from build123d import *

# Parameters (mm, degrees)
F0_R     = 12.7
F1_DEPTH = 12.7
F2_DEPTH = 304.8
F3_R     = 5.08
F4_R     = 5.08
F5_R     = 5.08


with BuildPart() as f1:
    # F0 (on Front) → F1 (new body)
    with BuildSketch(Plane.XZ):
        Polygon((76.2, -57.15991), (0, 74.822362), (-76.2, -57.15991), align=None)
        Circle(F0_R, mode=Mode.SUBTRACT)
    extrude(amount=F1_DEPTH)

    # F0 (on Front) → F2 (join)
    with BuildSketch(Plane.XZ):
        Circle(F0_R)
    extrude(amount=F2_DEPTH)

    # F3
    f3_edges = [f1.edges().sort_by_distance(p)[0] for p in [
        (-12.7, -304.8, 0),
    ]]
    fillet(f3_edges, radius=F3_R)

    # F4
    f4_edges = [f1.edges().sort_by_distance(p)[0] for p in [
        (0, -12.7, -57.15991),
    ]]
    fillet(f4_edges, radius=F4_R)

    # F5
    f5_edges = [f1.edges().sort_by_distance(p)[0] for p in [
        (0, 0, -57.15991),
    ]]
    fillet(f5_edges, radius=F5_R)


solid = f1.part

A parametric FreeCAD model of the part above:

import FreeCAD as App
import Part
import Sketcher
Q = App.Units.Quantity


def edges_at(feature, points):
    """Names of the edges that pass closest to the given points."""
    edges = feature.Shape.Edges
    near = lambda p: min(range(len(edges)), key=lambda i: edges[i].distToShape(Part.Vertex(*p))[0])
    return sorted({f"Edge{near(p) + 1}" for p in points})

doc = App.newDocument("Part")
body = doc.addObject("PartDesign::Body", "Body")

# Sketch on XZ plane
sketch1 = body.newObject("Sketcher::SketchObject", "Sketch")
sketch1.AttachmentSupport = (doc.getObject("XZ_Plane"), [""])
sketch1.MapMode = "FlatFace"
sketch1.addGeometry(Part.LineSegment(App.Vector(76.2, -57.15991, 0), App.Vector(0, 74.822362, 0)), False)
sketch1.addGeometry(Part.LineSegment(App.Vector(0, 74.822362, 0), App.Vector(-76.2, -57.15991, 0)), False)
sketch1.addGeometry(Part.LineSegment(App.Vector(-76.2, -57.15991, 0), App.Vector(76.2, -57.15991, 0)), False)
sketch1.addGeometry(Part.Circle(App.Vector(0, 0, 0), App.Vector(0, 0, 1), 12.7), False)
sketch1.addConstraint(Sketcher.Constraint("Coincident", 0, 2, 1, 1))
sketch1.addConstraint(Sketcher.Constraint("Coincident", 1, 2, 2, 1))
sketch1.addConstraint(Sketcher.Constraint("Coincident", 2, 2, 0, 1))
sketch1.addConstraint(Sketcher.Constraint("Horizontal", 2))
sketch1.addConstraint(Sketcher.Constraint("Coincident", 3, 3, -1, 1))
sketch1.addConstraint(Sketcher.Constraint("PointOnObject", 0, 2, -2))
sketch1.addConstraint(Sketcher.Constraint("Equal", 0, 1))
sketch1.addConstraint(Sketcher.Constraint("Diameter", 3, Q("1 in")))
sketch1.addConstraint(Sketcher.Constraint("DistanceX", 2, 1, 2, 2, Q("6 in")))
sketch1.addConstraint(Sketcher.Constraint("Distance", 0, Q("6 in")))
sketch1.addConstraint(Sketcher.Constraint("DistanceY", -1, 1, 0, 2, Q("74.822362 mm")))
pad1 = body.newObject("PartDesign::Pad", "Pad")
pad1.Profile = sketch1
pad1.Length = Q("0.5 in")

# Sketch on XZ plane
sketch2 = body.newObject("Sketcher::SketchObject", "Sketch001")
sketch2.AttachmentSupport = (doc.getObject("XZ_Plane"), [""])
sketch2.MapMode = "FlatFace"
sketch2.addGeometry(Part.Circle(App.Vector(0, 0, 0), App.Vector(0, 0, 1), 12.7), False)
sketch2.addConstraint(Sketcher.Constraint("Coincident", 0, 3, -1, 1))
sketch2.addConstraint(Sketcher.Constraint("Diameter", 0, Q("1 in")))
pad2 = body.newObject("PartDesign::Pad", "Pad001")
pad2.Profile = sketch2
pad2.Length = Q("12 in")
doc.recompute()

fillet = body.newObject("PartDesign::Fillet", "Fillet")
fillet.Base = (pad2, edges_at(pad2, [(-12.7, -304.8, 0)]))
fillet.Radius = Q("0.2 in")
doc.recompute()

fillet2 = body.newObject("PartDesign::Fillet", "Fillet001")
fillet2.Base = (fillet, edges_at(fillet, [(0, -12.7, -57.16)]))
fillet2.Radius = Q("0.2 in")
doc.recompute()

fillet3 = body.newObject("PartDesign::Fillet", "Fillet002")
fillet3.Base = (fillet2, edges_at(fillet2, [(0, 0, -57.16)]))
fillet3.Radius = Q("0.2 in")

doc.recompute()
